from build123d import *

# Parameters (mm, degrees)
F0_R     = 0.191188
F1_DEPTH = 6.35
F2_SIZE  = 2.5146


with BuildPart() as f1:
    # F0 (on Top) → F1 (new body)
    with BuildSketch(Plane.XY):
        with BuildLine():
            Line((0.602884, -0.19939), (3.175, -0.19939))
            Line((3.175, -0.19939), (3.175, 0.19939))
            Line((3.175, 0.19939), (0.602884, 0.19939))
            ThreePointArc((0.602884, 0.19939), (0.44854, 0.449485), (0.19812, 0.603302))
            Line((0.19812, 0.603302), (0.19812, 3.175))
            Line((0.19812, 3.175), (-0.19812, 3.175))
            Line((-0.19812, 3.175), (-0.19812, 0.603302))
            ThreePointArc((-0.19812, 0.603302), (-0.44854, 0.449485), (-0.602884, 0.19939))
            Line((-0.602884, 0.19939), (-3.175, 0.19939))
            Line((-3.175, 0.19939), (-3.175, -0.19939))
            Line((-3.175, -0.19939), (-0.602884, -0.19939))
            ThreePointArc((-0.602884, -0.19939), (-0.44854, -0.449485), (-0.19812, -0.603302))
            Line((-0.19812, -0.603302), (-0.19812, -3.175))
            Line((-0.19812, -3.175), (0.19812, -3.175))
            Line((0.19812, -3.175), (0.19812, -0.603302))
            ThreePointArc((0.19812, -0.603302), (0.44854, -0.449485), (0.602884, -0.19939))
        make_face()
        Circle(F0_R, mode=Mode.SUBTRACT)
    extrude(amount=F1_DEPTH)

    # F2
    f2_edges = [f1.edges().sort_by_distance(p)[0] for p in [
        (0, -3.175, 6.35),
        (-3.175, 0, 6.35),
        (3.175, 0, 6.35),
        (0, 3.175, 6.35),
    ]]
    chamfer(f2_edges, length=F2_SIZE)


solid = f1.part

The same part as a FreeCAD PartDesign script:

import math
import FreeCAD as App
import Part
import Sketcher
from FreeCAD import Vector
Q = App.Units.Quantity


def edges_at(feature, points):
    """Names of the edges that pass closest to the given points."""
    edges = feature.Shape.Edges
    near = lambda p: min(range(len(edges)), key=lambda i: edges[i].distToShape(Part.Vertex(*p))[0])
    return sorted({f"Edge{near(p) + 1}" for p in points})

doc = App.newDocument("Part")
body = doc.addObject("PartDesign::Body", "Body")

# Sketch on XY plane
sketch1 = doc.addObject("Sketcher::SketchObject", "Sketch")
body.addObject(sketch1)
sketch1.AttachmentSupport = (doc.XY_Plane, [""])
sketch1.MapMode = "FlatFace"
sketch1.addGeometry(Part.LineSegment(Vector(0.602884, -0.19939, 0), Vector(3.175, -0.19939, 0)), False)
sketch1.addGeometry(Part.LineSegment(Vector(3.175, -0.19939, 0), Vector(3.175, 0.19939, 0)), False)
sketch1.addGeometry(Part.LineSegment(Vector(3.175, 0.19939, 0), Vector(0.602884, 0.19939, 0)), False)
sketch1.addGeometry(Part.ArcOfCircle(Part.Circle(Vector(-0.000001, -0.000002, 0), Vector(0, 0, 1), 0.635002), math.radians(18.300569), math.radians(71.820161)), False)
sketch1.addGeometry(Part.LineSegment(Vector(0.19812, 0.603302, 0), Vector(0.19812, 3.175, 0)), False)
sketch1.addGeometry(Part.LineSegment(Vector(0.19812, 3.175, 0), Vector(-0.19812, 3.175, 0)), False)
sketch1.addGeometry(Part.LineSegment(Vector(-0.19812, 3.175, 0), Vector(-0.19812, 0.603302, 0)), False)
sketch1.addGeometry(Part.ArcOfCircle(Part.Circle(Vector(0.000001, -0.000002, 0), Vector(0, 0, 1), 0.635002), math.radians(108.179839), math.radians(161.699431)), False)
sketch1.addGeometry(Part.LineSegment(Vector(-0.602884, 0.19939, 0), Vector(-3.175, 0.19939, 0)), False)
sketch1.addGeometry(Part.LineSegment(Vector(-3.175, 0.19939, 0), Vector(-3.175, -0.19939, 0)), False)
sketch1.addGeometry(Part.LineSegment(Vector(-3.175, -0.19939, 0), Vector(-0.602884, -0.19939, 0)), False)
sketch1.addGeometry(Part.ArcOfCircle(Part.Circle(Vector(0.000001, 0.000002, 0), Vector(0, 0, 1), 0.635002), math.radians(-161.699431), math.radians(-108.179839)), False)
sketch1.addGeometry(Part.LineSegment(Vector(-0.19812, -0.603302, 0), Vector(-0.19812, -3.175, 0)), False)
sketch1.addGeometry(Part.LineSegment(Vector(-0.19812, -3.175, 0), Vector(0.19812, -3.175, 0)), False)
sketch1.addGeometry(Part.LineSegment(Vector(0.19812, -3.175, 0), Vector(0.19812, -0.603302, 0)), False)
sketch1.addGeometry(Part.ArcOfCircle(Part.Circle(Vector(-0.000001, 0.000002, 0), Vector(0, 0, 1), 0.635002), math.radians(-71.820161), math.radians(-18.300569)), False)
sketch1.addGeometry(Part.Circle(Vector(0, 0, 0), Vector(0, 0, 1), 0.191188), False)
sketch1.addConstraint(Sketcher.Constraint("Coincident", 0, 2, 1, 1))
sketch1.addConstraint(Sketcher.Constraint("Coincident", 1, 2, 2, 1))
sketch1.addConstraint(Sketcher.Constraint("Coincident", 2, 2, 3, 1))
sketch1.addConstraint(Sketcher.Constraint("Coincident", 3, 2, 4, 1))
sketch1.addConstraint(Sketcher.Constraint("Coincident", 4, 2, 5, 1))
sketch1.addConstraint(Sketcher.Constraint("Coincident", 5, 2, 6, 1))
sketch1.addConstraint(Sketcher.Constraint("Coincident", 6, 2, 7, 1))
sketch1.addConstraint(Sketcher.Constraint("Coincident", 7, 2, 8, 1))
sketch1.addConstraint(Sketcher.Constraint("Coincident", 8, 2, 9, 1))
sketch1.addConstraint(Sketcher.Constraint("Coincident", 9, 2, 10, 1))
sketch1.addConstraint(Sketcher.Constraint("Coincident", 10, 2, 11, 1))
sketch1.addConstraint(Sketcher.Constraint("Coincident", 11, 2, 12, 1))
sketch1.addConstraint(Sketcher.Constraint("Coincident", 12, 2, 13, 1))
sketch1.addConstraint(Sketcher.Constraint("Coincident", 13, 2, 14, 1))
sketch1.addConstraint(Sketcher.Constraint("Coincident", 14, 2, 15, 1))
sketch1.addConstraint(Sketcher.Constraint("Coincident", 15, 2, 0, 1))
sketch1.addConstraint(Sketcher.Constraint("Horizontal", 0))
sketch1.addConstraint(Sketcher.Constraint("Vertical", 1))
sketch1.addConstraint(Sketcher.Constraint("Horizontal", 2))
sketch1.addConstraint(Sketcher.Constraint("Vertical", 4))
sketch1.addConstraint(Sketcher.Constraint("Horizontal", 5))
sketch1.addConstraint(Sketcher.Constraint("Vertical", 6))
sketch1.addConstraint(Sketcher.Constraint("Horizontal", 8))
sketch1.addConstraint(Sketcher.Constraint("Vertical", 9))
sketch1.addConstraint(Sketcher.Constraint("Horizontal", 10))
sketch1.addConstraint(Sketcher.Constraint("Vertical", 12))
sketch1.addConstraint(Sketcher.Constraint("Horizontal", 13))
sketch1.addConstraint(Sketcher.Constraint("Vertical", 14))
sketch1.addConstraint(Sketcher.Constraint("Coincident", 3, 3, -1, 1))
sketch1.addConstraint(Sketcher.Constraint("Coincident", 7, 3, -1, 1))
sketch1.addConstraint(Sketcher.Constraint("Coincident", 11, 3, -1, 1))
sketch1.addConstraint(Sketcher.Constraint("Coincident", 15, 3, -1, 1))
sketch1.addConstraint(Sketcher.Constraint("Coincident", 16, 3, -1, 1))
sketch1.addConstraint(Sketcher.Constraint("Equal", 3, 7))
sketch1.addConstraint(Sketcher.Constraint("Equal", 7, 11))
sketch1.addConstraint(Sketcher.Constraint("Equal", 11, 15))
sketch1.addConstraint(Sketcher.Constraint("Symmetric", 0, 2, 8, 2, -1, 1))
sketch1.addConstraint(Sketcher.Constraint("Symmetric", 4, 2, 12, 2, -1, 1))
sketch1.addConstraint(Sketcher.Constraint("Horizontal", 3, 2, 6, 2))
sketch1.addConstraint(Sketcher.Constraint("Horizontal", 2, 2, 7, 2))
sketch1.addConstraint(Sketcher.Constraint("Horizontal", 0, 2, 9, 2))
sketch1.addConstraint(Sketcher.Constraint("Horizontal", 11, 2, 14, 2))
sketch1.addConstraint(Sketcher.Constraint("Radius", 3, Q("0.0250001 in")))
sketch1.addConstraint(Sketcher.Constraint("DistanceX", 5, 2, 5, 1, Q("0.0156 in")))
sketch1.addConstraint(Sketcher.Constraint("DistanceY", 1, 1, 1, 2, Q("0.0157 in")))
sketch1.addConstraint(Sketcher.Constraint("DistanceX", -1, 1, 0, 2, Q("0.125 in")))
sketch1.addConstraint(Sketcher.Constraint("DistanceY", -1, 1, 4, 2, Q("0.125 in")))
sketch1.addConstraint(Sketcher.Constraint("Diameter", 16, Q("0.382376 mm")))
pad1 = doc.addObject("PartDesign::Pad", "Pad")
body.addObject(pad1)
pad1.Profile = sketch1
pad1.Length = Q("0.25 in")
doc.recompute()

chamfer = doc.addObject("PartDesign::Chamfer", "Chamfer")
body.addObject(chamfer)
chamfer.Base = (pad1, edges_at(pad1, [
    (0, -3.175, 6.35),
    (-3.175, 0, 6.35),
    (3.175, 0, 6.35),
    (0, 3.175, 6.35),
]))
chamfer.Size = Q("0.099 in")

doc.recompute()
